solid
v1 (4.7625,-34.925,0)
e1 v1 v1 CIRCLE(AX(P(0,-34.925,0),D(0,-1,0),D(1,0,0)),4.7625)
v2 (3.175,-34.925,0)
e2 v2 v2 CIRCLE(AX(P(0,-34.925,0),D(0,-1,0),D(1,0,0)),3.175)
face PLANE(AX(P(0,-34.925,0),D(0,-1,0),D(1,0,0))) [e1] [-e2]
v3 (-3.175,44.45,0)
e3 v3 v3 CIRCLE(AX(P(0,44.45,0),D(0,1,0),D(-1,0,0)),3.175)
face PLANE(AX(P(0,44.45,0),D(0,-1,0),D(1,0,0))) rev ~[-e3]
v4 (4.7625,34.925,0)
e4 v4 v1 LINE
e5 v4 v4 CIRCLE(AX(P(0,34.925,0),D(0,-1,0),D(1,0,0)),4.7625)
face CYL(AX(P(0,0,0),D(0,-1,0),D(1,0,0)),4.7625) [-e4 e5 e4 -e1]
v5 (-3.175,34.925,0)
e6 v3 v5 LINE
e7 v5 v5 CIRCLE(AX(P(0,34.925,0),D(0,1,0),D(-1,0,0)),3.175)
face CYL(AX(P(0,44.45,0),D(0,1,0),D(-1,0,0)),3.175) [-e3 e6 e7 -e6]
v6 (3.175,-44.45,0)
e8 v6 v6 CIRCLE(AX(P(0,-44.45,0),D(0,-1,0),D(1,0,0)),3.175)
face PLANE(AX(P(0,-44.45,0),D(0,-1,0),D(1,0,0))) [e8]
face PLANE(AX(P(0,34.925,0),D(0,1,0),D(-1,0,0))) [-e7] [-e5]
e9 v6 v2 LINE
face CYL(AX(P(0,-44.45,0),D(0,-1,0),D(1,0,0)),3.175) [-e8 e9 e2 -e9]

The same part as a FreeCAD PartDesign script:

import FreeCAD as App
import Part
import Sketcher
from FreeCAD import Vector
Q = App.Units.Quantity

doc = App.newDocument("Part")
body = doc.addObject("PartDesign::Body", "Body")

# Sketch on XZ plane
sketch1 = body.newObject("Sketcher::SketchObject", "Sketch")
sketch1.AttachmentSupport = (doc.getObject("XZ_Plane"), [""])
sketch1.MapMode = "FlatFace"
sketch1.addGeometry(Part.Circle(Vector(0, 0, 0), Vector(0, 0, 1), 4.8), False)
sketch1.addConstraint(Sketcher.Constraint("Coincident", 0, 3, -1, 1))
sketch1.addConstraint(Sketcher.Constraint("Diameter", 0, Q("0.375 in")))
pad1 = body.newObject("PartDesign::Pad", "Pad")
pad1.Profile = sketch1
pad1.Length = Q("3.5 in")
pad1.Midplane = True

# Sketch on XZ plane
sketch2 = body.newObject("Sketcher::SketchObject", "Sketch001")
sketch2.AttachmentSupport = (doc.getObject("XZ_Plane"), [""])
sketch2.MapMode = "FlatFace"
sketch2.AttachmentOffset = App.Placement(Vector(0, 0, 1.75 * 25.4), App.Rotation())
sketch2.addGeometry(Part.Circle(Vector(0, 0, 0), Vector(0, 0, 1), 6.3), False)
sketch2.addGeometry(Part.Circle(Vector(0, 0, 0), Vector(0, 0, 1), 3.2), False)
sketch2.addConstraint(Sketcher.Constraint("Coincident", 0, 3, -1, 1))
sketch2.addConstraint(Sketcher.Constraint("Coincident", 1, 3, -1, 1))
sketch2.addConstraint(Sketcher.Constraint("Diameter", 0, Q("0.5 in")))
sketch2.addConstraint(Sketcher.Constraint("Diameter", 1, Q("0.25 in")))
pocket1 = body.newObject("PartDesign::Pocket", "Pocket")
pocket1.Profile = sketch2
pocket1.Length = Q("0.375 in")

# Sketch on XZ plane
sketch3 = body.newObject("Sketcher::SketchObject", "Sketch002")
sketch3.AttachmentSupport = (doc.getObject("XZ_Plane"), [""])
sketch3.MapMode = "FlatFace"
sketch3.AttachmentOffset = App.Placement(Vector(0, 0, -1.75 * 25.4), App.Rotation())
sketch3.addGeometry(Part.Circle(Vector(0, 0, 0), Vector(0, 0, 1), 6.3), False)
sketch3.addGeometry(Part.Circle(Vector(0, 0, 0), Vector(0, 0, 1), 3.2), False)
sketch3.addConstraint(Sketcher.Constraint("Coincident", 0, 3, -1, 1))
sketch3.addConstraint(Sketcher.Constraint("Coincident", 1, 3, -1, 1))
sketch3.addConstraint(Sketcher.Constraint("Diameter", 0, Q("0.5 in")))
sketch3.addConstraint(Sketcher.Constraint("Diameter", 1, Q("0.25 in")))
pocket2 = body.newObject("PartDesign::Pocket", "Pocket001")
pocket2.Profile = sketch3
pocket2.Length = Q("0.375 in")
pocket2.Reversed = True

doc.recompute()
